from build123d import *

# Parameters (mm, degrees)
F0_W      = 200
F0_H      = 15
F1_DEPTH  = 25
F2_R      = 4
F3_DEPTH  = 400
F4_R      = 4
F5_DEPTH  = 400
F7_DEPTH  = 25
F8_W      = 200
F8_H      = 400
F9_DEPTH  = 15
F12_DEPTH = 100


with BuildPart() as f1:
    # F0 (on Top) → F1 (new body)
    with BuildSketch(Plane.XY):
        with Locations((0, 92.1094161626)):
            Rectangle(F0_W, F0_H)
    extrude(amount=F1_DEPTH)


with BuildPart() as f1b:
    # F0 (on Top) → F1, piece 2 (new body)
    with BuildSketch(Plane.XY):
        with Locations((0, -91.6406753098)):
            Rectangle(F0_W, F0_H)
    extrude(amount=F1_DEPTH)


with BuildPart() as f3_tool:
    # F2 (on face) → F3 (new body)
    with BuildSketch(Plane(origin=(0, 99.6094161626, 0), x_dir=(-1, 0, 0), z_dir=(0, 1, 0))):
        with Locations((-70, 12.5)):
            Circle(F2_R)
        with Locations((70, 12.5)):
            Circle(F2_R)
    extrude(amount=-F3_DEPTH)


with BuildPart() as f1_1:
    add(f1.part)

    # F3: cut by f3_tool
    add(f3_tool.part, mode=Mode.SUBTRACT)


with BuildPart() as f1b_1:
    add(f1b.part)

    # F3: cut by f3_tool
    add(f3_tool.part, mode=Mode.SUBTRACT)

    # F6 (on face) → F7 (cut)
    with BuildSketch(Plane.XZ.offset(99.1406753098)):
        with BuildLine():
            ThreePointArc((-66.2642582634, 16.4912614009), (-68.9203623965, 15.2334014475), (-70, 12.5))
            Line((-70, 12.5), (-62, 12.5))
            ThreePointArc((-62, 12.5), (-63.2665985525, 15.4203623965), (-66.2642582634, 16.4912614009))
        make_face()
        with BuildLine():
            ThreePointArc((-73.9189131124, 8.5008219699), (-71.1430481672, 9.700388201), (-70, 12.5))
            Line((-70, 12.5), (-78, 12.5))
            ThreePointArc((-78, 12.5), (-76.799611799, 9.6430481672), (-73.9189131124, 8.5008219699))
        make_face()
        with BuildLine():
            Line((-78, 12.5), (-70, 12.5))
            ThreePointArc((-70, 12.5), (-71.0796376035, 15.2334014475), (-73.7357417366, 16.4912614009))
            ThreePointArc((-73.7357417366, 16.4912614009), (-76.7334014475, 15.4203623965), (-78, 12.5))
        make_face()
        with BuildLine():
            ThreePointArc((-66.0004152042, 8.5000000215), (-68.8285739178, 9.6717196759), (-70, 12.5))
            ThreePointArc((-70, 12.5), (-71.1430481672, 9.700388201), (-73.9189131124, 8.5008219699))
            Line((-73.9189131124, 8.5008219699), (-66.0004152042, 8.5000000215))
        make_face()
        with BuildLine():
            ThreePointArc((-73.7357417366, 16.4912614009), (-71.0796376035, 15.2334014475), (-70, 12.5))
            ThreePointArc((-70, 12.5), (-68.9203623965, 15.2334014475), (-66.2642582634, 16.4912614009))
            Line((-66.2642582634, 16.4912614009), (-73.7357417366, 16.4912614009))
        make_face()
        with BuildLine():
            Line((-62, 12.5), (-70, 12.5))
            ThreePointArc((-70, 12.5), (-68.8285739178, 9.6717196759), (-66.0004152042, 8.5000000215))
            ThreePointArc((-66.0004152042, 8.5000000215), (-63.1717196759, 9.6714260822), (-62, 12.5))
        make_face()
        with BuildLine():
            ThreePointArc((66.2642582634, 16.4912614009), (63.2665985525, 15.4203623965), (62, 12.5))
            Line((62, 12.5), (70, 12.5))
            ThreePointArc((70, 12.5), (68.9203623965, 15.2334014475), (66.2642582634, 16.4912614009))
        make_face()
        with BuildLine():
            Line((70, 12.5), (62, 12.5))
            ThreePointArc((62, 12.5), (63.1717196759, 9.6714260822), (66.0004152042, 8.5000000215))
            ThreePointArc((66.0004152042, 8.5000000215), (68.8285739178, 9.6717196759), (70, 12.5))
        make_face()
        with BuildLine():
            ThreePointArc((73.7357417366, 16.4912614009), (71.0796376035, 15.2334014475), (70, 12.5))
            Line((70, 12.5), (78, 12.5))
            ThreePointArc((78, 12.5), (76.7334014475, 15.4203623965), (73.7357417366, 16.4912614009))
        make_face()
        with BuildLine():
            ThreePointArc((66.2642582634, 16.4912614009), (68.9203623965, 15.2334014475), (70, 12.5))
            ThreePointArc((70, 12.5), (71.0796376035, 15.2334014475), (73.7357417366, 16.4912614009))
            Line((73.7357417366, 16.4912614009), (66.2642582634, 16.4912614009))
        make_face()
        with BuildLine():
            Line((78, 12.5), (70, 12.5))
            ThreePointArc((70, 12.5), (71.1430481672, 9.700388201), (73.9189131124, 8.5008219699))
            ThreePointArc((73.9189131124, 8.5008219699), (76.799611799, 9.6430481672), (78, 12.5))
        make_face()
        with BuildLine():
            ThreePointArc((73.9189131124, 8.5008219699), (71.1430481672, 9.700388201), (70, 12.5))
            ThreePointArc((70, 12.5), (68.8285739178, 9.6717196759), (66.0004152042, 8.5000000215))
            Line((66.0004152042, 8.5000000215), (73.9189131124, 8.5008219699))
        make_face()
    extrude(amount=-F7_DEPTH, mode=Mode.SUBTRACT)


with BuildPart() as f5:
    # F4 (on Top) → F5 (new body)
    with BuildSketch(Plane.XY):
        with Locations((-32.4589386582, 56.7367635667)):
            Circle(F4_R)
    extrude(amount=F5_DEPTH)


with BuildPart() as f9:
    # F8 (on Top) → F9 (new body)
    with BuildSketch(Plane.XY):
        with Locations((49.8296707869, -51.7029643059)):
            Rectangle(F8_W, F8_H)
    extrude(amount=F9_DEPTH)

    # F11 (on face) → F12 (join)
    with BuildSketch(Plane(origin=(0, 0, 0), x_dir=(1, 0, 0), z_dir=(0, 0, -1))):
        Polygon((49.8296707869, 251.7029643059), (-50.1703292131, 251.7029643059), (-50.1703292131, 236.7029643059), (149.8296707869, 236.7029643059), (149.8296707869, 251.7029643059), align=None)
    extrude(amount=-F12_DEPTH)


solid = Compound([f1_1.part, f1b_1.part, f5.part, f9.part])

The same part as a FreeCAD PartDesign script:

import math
import FreeCAD as App
import Part
import Sketcher
Q = App.Units.Quantity

doc = App.newDocument("Part")
params = doc.addObject("Spreadsheet::Sheet", "Params")
for row, (alias, value) in enumerate([
    ("sketch1_width", "200 mm"),
    ("sketch1_height", "15 mm"),
    ("pad1_length", "25 mm"),
    ("sketch2_width", "200 mm"),
    ("sketch2_height", "15 mm"),
    ("pad2_length", "25 mm"),
    ("sketch3_diameter", "8 mm"),
    ("pad3_length", "400 mm"),
    ("sketch4_radius", "4 mm"),
    ("pocket1_length", "25 mm"),
    ("sketch5_diameter", "8 mm"),
    ("pad4_length", "400 mm"),
    ("sketch6_width", "200 mm"),
    ("sketch6_height", "400 mm"),
    ("pad5_length", "15 mm"),
    ("sketch7_width", "200 mm"),
    ("sketch7_height", "15 mm"),
    ("pad6_length", "100 mm"),
], start=1):
    params.set(f"A{row}", alias)
    params.set(f"B{row}", "=" + value)
    params.setAlias(f"B{row}", alias)

body = doc.addObject("PartDesign::Body", "Body")

# Sketch on XY plane
sketch1 = doc.addObject("Sketcher::SketchObject", "Sketch")
body.addObject(sketch1)
sketch1.AttachmentSupport = (doc.XY_Plane, [""])
sketch1.MapMode = "FlatFace"
sketch1.addGeometry([
    Part.LineSegment(App.Vector(-100, 100, 0), App.Vector(-100, 85, 0)),
    Part.LineSegment(App.Vector(-100, 85, 0), App.Vector(100, 85, 0)),
    Part.LineSegment(App.Vector(100, 85, 0), App.Vector(100, 100, 0)),
    Part.LineSegment(App.Vector(100, 100, 0), App.Vector(-100, 100, 0)),
], False)
sketch1.addConstraint([
    Sketcher.Constraint("Coincident", 0, 2, 1, 1),
    Sketcher.Constraint("Coincident", 1, 2, 2, 1),
    Sketcher.Constraint("Coincident", 2, 2, 3, 1),
    Sketcher.Constraint("Coincident", 3, 2, 0, 1),
    Sketcher.Constraint("Vertical", 0),
    Sketcher.Constraint("Horizontal", 1),
    Sketcher.Constraint("Vertical", 2),
    Sketcher.Constraint("Horizontal", 3),
    Sketcher.Constraint("DistanceX", 1, 1, 1, 2, Q("200 mm")),
    Sketcher.Constraint("DistanceY", 0, 2, 0, 1, Q("15 mm")),
    Sketcher.Constraint("DistanceX", 0, 2, -1, 1, Q("100 mm")),
    Sketcher.Constraint("DistanceY", -1, 1, 0, 2, Q("84.609416 mm")),
])
sketch1.setExpression("Constraints[8]", "Params.sketch1_width")
sketch1.setExpression("Constraints[9]", "Params.sketch1_height")
pad1 = doc.addObject("PartDesign::Pad", "Pad")
body.addObject(pad1)
pad1.Profile = sketch1
pad1.setExpression("Length", "Params.pad1_length")
body2 = doc.addObject("PartDesign::Body", "Body001")

# Sketch on XY plane
sketch2 = doc.addObject("Sketcher::SketchObject", "Sketch001")
body2.addObject(sketch2)
sketch2.AttachmentSupport = (doc.getObject("XY_Plane001"), [""])
sketch2.MapMode = "FlatFace"
sketch2.addGeometry([
    Part.LineSegment(App.Vector(-100, -84, 0), App.Vector(-100, -99, 0)),
    Part.LineSegment(App.Vector(-100, -99, 0), App.Vector(100, -99, 0)),
    Part.LineSegment(App.Vector(100, -99, 0), App.Vector(100, -84, 0)),
    Part.LineSegment(App.Vector(100, -84, 0), App.Vector(-100, -84, 0)),
], False)
sketch2.addConstraint([
    Sketcher.Constraint("Coincident", 0, 2, 1, 1),
    Sketcher.Constraint("Coincident", 1, 2, 2, 1),
    Sketcher.Constraint("Coincident", 2, 2, 3, 1),
    Sketcher.Constraint("Coincident", 3, 2, 0, 1),
    Sketcher.Constraint("Vertical", 0),
    Sketcher.Constraint("Horizontal", 1),
    Sketcher.Constraint("Vertical", 2),
    Sketcher.Constraint("Horizontal", 3),
    Sketcher.Constraint("DistanceX", 1, 1, 1, 2, Q("200 mm")),
    Sketcher.Constraint("DistanceY", 0, 2, 0, 1, Q("15 mm")),
    Sketcher.Constraint("DistanceX", 0, 2, -1, 1, Q("100 mm")),
    Sketcher.Constraint("DistanceY", 0, 2, -1, 1, Q("99.140675 mm")),
])
sketch2.setExpression("Constraints[8]", "Params.sketch2_width")
sketch2.setExpression("Constraints[9]", "Params.sketch2_height")
pad2 = doc.addObject("PartDesign::Pad", "Pad001")
body2.addObject(pad2)
pad2.Profile = sketch2
pad2.setExpression("Length", "Params.pad2_length")
body3 = doc.addObject("PartDesign::Body", "Body002")
body3.AllowCompound = True

# Sketch on XZ plane
sketch3 = doc.addObject("Sketcher::SketchObject", "Sketch002")
body3.addObject(sketch3)
sketch3.AttachmentSupport = (doc.getObject("XZ_Plane002"), [""])
sketch3.MapMode = "FlatFace"
sketch3.AttachmentOffset = App.Placement(App.Vector(0, 0, -99.609416), App.Rotation())
sketch3.addGeometry([
    Part.Circle(App.Vector(70, 12.5, 0), App.Vector(0, 0, 1), 4),
    Part.Circle(App.Vector(-70, 12.5, 0), App.Vector(0, 0, 1), 4),
], False)
sketch3.addConstraint([
    Sketcher.Constraint("Equal", 0, 1),
    Sketcher.Constraint("Symmetric", 0, 3, 1, 3, -2),
    Sketcher.Constraint("Diameter", 0, Q("8 mm")),
    Sketcher.Constraint("DistanceX", -1, 1, 0, 3, Q("70 mm")),
    Sketcher.Constraint("DistanceY", -1, 1, 0, 3, Q("12.5 mm")),
])
sketch3.setExpression("Constraints[2]", "Params.sketch3_diameter")
pad3 = doc.addObject("PartDesign::Pad", "Pad002")
body3.addObject(pad3)
pad3.Profile = sketch3
pad3.setExpression("Length", "Params.pad3_length")
doc.recompute()

body4 = doc.addObject("PartDesign::Body", "Body003")
body4.BaseFeature = body3
boolean = doc.addObject("PartDesign::Boolean", "Boolean")
body.addObject(boolean)
boolean.Type = "Cut"
boolean.addObjects([body4])
doc.recompute()

boolean2 = doc.addObject("PartDesign::Boolean", "Boolean001")
body2.addObject(boolean2)
boolean2.Type = "Cut"
boolean2.addObjects([body3])

# Sketch on XZ plane
sketch4 = doc.addObject("Sketcher::SketchObject", "Sketch003")
body2.addObject(sketch4)
sketch4.AttachmentSupport = (doc.getObject("XZ_Plane001"), [""])
sketch4.MapMode = "FlatFace"
sketch4.AttachmentOffset = App.Placement(App.Vector(0, 0, 99.140675), App.Rotation())
sketch4.addGeometry([
    Part.ArcOfCircle(Part.Circle(App.Vector(-66, 12.5, 0), App.Vector(0, 0, 1), 4), math.radians(0), math.radians(94)),  # 0
    Part.LineSegment(App.Vector(-66.3, 16.5, 0), App.Vector(-73.7, 16.5, 0)),  # 1
    Part.ArcOfCircle(Part.Circle(App.Vector(-74, 12.5, 0), App.Vector(0, 0, 1), 4), math.radians(86), math.radians(180)),  # 2
    Part.ArcOfCircle(Part.Circle(App.Vector(-74, 12.5, 0), App.Vector(0, 0, 1), 4), math.radians(180), math.radians(271)),  # 3
    Part.LineSegment(App.Vector(-73.9, 8.5, 0), App.Vector(-66, 8.5, 0)),  # 4
    Part.ArcOfCircle(Part.Circle(App.Vector(-66, 12.5, 0), App.Vector(0, 0, 1), 4), math.radians(-90), math.radians(0)),  # 5
    Part.ArcOfCircle(Part.Circle(App.Vector(66, 12.5, 0), App.Vector(0, 0, 1), 4), math.radians(86), math.radians(180)),  # 6
    Part.ArcOfCircle(Part.Circle(App.Vector(66, 12.5, 0), App.Vector(0, 0, 1), 4), math.radians(180), math.radians(270)),  # 7
    Part.LineSegment(App.Vector(66, 8.5, 0), App.Vector(73.9, 8.5, 0)),  # 8
    Part.ArcOfCircle(Part.Circle(App.Vector(74, 12.5, 0), App.Vector(0, 0, 1), 4), math.radians(-91), math.radians(0)),  # 9
    Part.ArcOfCircle(Part.Circle(App.Vector(74, 12.5, 0), App.Vector(0, 0, 1), 4), math.radians(0), math.radians(94)),  # 10
    Part.LineSegment(App.Vector(73.7, 16.5, 0), App.Vector(66.3, 16.5, 0)),  # 11
], False)
sketch4.addConstraint([
    Sketcher.Constraint("Coincident", 0, 2, 1, 1),
    Sketcher.Constraint("Coincident", 1, 2, 2, 1),
    Sketcher.Constraint("Tangent", 2, 2, 3, 1),
    Sketcher.Constraint("Coincident", 3, 2, 4, 1),
    Sketcher.Constraint("Tangent", 4, 2, 5, 1),
    Sketcher.Constraint("Tangent", 5, 2, 0, 1),
    Sketcher.Constraint("Tangent", 6, 2, 7, 1),
    Sketcher.Constraint("Tangent", 7, 2, 8, 1),
    Sketcher.Constraint("Coincident", 8, 2, 9, 1),
    Sketcher.Constraint("Tangent", 9, 2, 10, 1),
    Sketcher.Constraint("Coincident", 10, 2, 11, 1),
    Sketcher.Constraint("Coincident", 11, 2, 6, 1),
    Sketcher.Constraint("Horizontal", 1),
    Sketcher.Constraint("Horizontal", 11),
    Sketcher.Constraint("Equal", 0, 2),
    Sketcher.Constraint("Equal", 2, 3),
    Sketcher.Constraint("Equal", 3, 5),
    Sketcher.Constraint("Equal", 5, 6),
    Sketcher.Constraint("Equal", 6, 7),
    Sketcher.Constraint("Equal", 7, 9),
    Sketcher.Constraint("Equal", 9, 10),
    Sketcher.Constraint("Symmetric", 0, 3, 6, 3, -2),
    Sketcher.Constraint("Symmetric", 2, 3, 9, 3, -2),
    Sketcher.Constraint("Horizontal", 0, 3, 2, 3),
    Sketcher.Constraint("Horizontal", 10, 3, 2, 2),
    Sketcher.Constraint("Horizontal", 2, 2, 5, 2),
    Sketcher.Constraint("Horizontal", 5, 2, 6, 2),
    Sketcher.Constraint("Horizontal", 3, 2, 8, 2),
    Sketcher.Constraint("Horizontal", 6, 2, 9, 2),
    Sketcher.Constraint("Horizontal", 1, 2, 10, 2),
    Sketcher.Constraint("Radius", 0, Q("4 mm")),
    Sketcher.Constraint("DistanceX", 0, 3, -1, 1, Q("66 mm")),
    Sketcher.Constraint("DistanceX", 2, 3, -1, 1, Q("74 mm")),
    Sketcher.Constraint("DistanceY", -1, 1, 0, 3, Q("12.5 mm")),
    Sketcher.Constraint("DistanceX", 1, 2, 1, 1, Q("7.471483 mm")),
    Sketcher.Constraint("DistanceY", -1, 1, 3, 2, Q("8.500822 mm")),
])
sketch4.setExpression("Constraints[30]", "Params.sketch4_radius")
pocket1 = doc.addObject("PartDesign::Pocket", "Pocket")
body2.addObject(pocket1)
pocket1.Profile = sketch4
pocket1.setExpression("Length", "Params.pocket1_length")
body5 = doc.addObject("PartDesign::Body", "Body004")

# Sketch on XY plane
sketch5 = doc.addObject("Sketcher::SketchObject", "Sketch004")
body5.addObject(sketch5)
sketch5.AttachmentSupport = (doc.getObject("XY_Plane004"), [""])
sketch5.MapMode = "FlatFace"
sketch5.addGeometry(Part.Circle(App.Vector(-32.5, 56.7, 0), App.Vector(0, 0, 1), 4), False)
sketch5.addConstraint([
    Sketcher.Constraint("Diameter", 0, Q("8 mm")),
    Sketcher.Constraint("DistanceX", 0, 3, -1, 1, Q("32.458939 mm")),
    Sketcher.Constraint("DistanceY", -1, 1, 0, 3, Q("56.736764 mm")),
])
sketch5.setExpression("Constraints[0]", "Params.sketch5_diameter")
pad4 = doc.addObject("PartDesign::Pad", "Pad003")
body5.addObject(pad4)
pad4.Profile = sketch5
pad4.setExpression("Length", "Params.pad4_length")
body6 = doc.addObject("PartDesign::Body", "Body005")

# Sketch on XY plane
sketch6 = doc.addObject("Sketcher::SketchObject", "Sketch005")
body6.addObject(sketch6)
sketch6.AttachmentSupport = (doc.getObject("XY_Plane005"), [""])
sketch6.MapMode = "FlatFace"
sketch6.addGeometry([
    Part.LineSegment(App.Vector(-50, 148, 0), App.Vector(-50, -252, 0)),
    Part.LineSegment(App.Vector(-50, -252, 0), App.Vector(150, -252, 0)),
    Part.LineSegment(App.Vector(150, -252, 0), App.Vector(150, 148, 0)),
    Part.LineSegment(App.Vector(150, 148, 0), App.Vector(-50, 148, 0)),
], False)
sketch6.addConstraint([
    Sketcher.Constraint("Coincident", 0, 2, 1, 1),
    Sketcher.Constraint("Coincident", 1, 2, 2, 1),
    Sketcher.Constraint("Coincident", 2, 2, 3, 1),
    Sketcher.Constraint("Coincident", 3, 2, 0, 1),
    Sketcher.Constraint("Vertical", 0),
    Sketcher.Constraint("Horizontal", 1),
    Sketcher.Constraint("Vertical", 2),
    Sketcher.Constraint("Horizontal", 3),
    Sketcher.Constraint("DistanceX", 1, 1, 1, 2, Q("200 mm")),
    Sketcher.Constraint("DistanceY", 0, 2, 0, 1, Q("400 mm")),
    Sketcher.Constraint("DistanceX", 0, 2, -1, 1, Q("50.170329 mm")),
    Sketcher.Constraint("DistanceY", 0, 2, -1, 1, Q("251.702964 mm")),
])
sketch6.setExpression("Constraints[8]", "Params.sketch6_width")
sketch6.setExpression("Constraints[9]", "Params.sketch6_height")
pad5 = doc.addObject("PartDesign::Pad", "Pad004")
body6.addObject(pad5)
pad5.Profile = sketch6
pad5.setExpression("Length", "Params.pad5_length")

# Sketch on XY plane
sketch7 = doc.addObject("Sketcher::SketchObject", "Sketch006")
body6.addObject(sketch7)
sketch7.AttachmentSupport = (doc.getObject("XY_Plane005"), [""])
sketch7.MapMode = "FlatFace"
sketch7.addGeometry([
    Part.LineSegment(App.Vector(-50, -252, 0), App.Vector(-50, -237, 0)),
    Part.LineSegment(App.Vector(-50, -237, 0), App.Vector(150, -237, 0)),
    Part.LineSegment(App.Vector(150, -237, 0), App.Vector(150, -252, 0)),
    Part.LineSegment(App.Vector(150, -252, 0), App.Vector(-50, -252, 0)),
], False)
sketch7.addConstraint([
    Sketcher.Constraint("Coincident", 0, 2, 1, 1),
    Sketcher.Constraint("Coincident", 1, 2, 2, 1),
    Sketcher.Constraint("Coincident", 2, 2, 3, 1),
    Sketcher.Constraint("Coincident", 3, 2, 0, 1),
    Sketcher.Constraint("Vertical", 0),
    Sketcher.Constraint("Horizontal", 1),
    Sketcher.Constraint("Vertical", 2),
    Sketcher.Constraint("Horizontal", 3),
    Sketcher.Constraint("DistanceX", 1, 1, 1, 2, Q("200 mm")),
    Sketcher.Constraint("DistanceY", 0, 1, 0, 2, Q("15 mm")),
    Sketcher.Constraint("DistanceX", 0, 2, -1, 1, Q("50.170329 mm")),
    Sketcher.Constraint("DistanceY", 0, 2, -1, 1, Q("236.702964 mm")),
])
sketch7.setExpression("Constraints[8]", "Params.sketch7_width")
sketch7.setExpression("Constraints[9]", "Params.sketch7_height")
pad6 = doc.addObject("PartDesign::Pad", "Pad005")
body6.addObject(pad6)
pad6.Profile = sketch7
pad6.setExpression("Length", "Params.pad6_length")

doc.recompute()
